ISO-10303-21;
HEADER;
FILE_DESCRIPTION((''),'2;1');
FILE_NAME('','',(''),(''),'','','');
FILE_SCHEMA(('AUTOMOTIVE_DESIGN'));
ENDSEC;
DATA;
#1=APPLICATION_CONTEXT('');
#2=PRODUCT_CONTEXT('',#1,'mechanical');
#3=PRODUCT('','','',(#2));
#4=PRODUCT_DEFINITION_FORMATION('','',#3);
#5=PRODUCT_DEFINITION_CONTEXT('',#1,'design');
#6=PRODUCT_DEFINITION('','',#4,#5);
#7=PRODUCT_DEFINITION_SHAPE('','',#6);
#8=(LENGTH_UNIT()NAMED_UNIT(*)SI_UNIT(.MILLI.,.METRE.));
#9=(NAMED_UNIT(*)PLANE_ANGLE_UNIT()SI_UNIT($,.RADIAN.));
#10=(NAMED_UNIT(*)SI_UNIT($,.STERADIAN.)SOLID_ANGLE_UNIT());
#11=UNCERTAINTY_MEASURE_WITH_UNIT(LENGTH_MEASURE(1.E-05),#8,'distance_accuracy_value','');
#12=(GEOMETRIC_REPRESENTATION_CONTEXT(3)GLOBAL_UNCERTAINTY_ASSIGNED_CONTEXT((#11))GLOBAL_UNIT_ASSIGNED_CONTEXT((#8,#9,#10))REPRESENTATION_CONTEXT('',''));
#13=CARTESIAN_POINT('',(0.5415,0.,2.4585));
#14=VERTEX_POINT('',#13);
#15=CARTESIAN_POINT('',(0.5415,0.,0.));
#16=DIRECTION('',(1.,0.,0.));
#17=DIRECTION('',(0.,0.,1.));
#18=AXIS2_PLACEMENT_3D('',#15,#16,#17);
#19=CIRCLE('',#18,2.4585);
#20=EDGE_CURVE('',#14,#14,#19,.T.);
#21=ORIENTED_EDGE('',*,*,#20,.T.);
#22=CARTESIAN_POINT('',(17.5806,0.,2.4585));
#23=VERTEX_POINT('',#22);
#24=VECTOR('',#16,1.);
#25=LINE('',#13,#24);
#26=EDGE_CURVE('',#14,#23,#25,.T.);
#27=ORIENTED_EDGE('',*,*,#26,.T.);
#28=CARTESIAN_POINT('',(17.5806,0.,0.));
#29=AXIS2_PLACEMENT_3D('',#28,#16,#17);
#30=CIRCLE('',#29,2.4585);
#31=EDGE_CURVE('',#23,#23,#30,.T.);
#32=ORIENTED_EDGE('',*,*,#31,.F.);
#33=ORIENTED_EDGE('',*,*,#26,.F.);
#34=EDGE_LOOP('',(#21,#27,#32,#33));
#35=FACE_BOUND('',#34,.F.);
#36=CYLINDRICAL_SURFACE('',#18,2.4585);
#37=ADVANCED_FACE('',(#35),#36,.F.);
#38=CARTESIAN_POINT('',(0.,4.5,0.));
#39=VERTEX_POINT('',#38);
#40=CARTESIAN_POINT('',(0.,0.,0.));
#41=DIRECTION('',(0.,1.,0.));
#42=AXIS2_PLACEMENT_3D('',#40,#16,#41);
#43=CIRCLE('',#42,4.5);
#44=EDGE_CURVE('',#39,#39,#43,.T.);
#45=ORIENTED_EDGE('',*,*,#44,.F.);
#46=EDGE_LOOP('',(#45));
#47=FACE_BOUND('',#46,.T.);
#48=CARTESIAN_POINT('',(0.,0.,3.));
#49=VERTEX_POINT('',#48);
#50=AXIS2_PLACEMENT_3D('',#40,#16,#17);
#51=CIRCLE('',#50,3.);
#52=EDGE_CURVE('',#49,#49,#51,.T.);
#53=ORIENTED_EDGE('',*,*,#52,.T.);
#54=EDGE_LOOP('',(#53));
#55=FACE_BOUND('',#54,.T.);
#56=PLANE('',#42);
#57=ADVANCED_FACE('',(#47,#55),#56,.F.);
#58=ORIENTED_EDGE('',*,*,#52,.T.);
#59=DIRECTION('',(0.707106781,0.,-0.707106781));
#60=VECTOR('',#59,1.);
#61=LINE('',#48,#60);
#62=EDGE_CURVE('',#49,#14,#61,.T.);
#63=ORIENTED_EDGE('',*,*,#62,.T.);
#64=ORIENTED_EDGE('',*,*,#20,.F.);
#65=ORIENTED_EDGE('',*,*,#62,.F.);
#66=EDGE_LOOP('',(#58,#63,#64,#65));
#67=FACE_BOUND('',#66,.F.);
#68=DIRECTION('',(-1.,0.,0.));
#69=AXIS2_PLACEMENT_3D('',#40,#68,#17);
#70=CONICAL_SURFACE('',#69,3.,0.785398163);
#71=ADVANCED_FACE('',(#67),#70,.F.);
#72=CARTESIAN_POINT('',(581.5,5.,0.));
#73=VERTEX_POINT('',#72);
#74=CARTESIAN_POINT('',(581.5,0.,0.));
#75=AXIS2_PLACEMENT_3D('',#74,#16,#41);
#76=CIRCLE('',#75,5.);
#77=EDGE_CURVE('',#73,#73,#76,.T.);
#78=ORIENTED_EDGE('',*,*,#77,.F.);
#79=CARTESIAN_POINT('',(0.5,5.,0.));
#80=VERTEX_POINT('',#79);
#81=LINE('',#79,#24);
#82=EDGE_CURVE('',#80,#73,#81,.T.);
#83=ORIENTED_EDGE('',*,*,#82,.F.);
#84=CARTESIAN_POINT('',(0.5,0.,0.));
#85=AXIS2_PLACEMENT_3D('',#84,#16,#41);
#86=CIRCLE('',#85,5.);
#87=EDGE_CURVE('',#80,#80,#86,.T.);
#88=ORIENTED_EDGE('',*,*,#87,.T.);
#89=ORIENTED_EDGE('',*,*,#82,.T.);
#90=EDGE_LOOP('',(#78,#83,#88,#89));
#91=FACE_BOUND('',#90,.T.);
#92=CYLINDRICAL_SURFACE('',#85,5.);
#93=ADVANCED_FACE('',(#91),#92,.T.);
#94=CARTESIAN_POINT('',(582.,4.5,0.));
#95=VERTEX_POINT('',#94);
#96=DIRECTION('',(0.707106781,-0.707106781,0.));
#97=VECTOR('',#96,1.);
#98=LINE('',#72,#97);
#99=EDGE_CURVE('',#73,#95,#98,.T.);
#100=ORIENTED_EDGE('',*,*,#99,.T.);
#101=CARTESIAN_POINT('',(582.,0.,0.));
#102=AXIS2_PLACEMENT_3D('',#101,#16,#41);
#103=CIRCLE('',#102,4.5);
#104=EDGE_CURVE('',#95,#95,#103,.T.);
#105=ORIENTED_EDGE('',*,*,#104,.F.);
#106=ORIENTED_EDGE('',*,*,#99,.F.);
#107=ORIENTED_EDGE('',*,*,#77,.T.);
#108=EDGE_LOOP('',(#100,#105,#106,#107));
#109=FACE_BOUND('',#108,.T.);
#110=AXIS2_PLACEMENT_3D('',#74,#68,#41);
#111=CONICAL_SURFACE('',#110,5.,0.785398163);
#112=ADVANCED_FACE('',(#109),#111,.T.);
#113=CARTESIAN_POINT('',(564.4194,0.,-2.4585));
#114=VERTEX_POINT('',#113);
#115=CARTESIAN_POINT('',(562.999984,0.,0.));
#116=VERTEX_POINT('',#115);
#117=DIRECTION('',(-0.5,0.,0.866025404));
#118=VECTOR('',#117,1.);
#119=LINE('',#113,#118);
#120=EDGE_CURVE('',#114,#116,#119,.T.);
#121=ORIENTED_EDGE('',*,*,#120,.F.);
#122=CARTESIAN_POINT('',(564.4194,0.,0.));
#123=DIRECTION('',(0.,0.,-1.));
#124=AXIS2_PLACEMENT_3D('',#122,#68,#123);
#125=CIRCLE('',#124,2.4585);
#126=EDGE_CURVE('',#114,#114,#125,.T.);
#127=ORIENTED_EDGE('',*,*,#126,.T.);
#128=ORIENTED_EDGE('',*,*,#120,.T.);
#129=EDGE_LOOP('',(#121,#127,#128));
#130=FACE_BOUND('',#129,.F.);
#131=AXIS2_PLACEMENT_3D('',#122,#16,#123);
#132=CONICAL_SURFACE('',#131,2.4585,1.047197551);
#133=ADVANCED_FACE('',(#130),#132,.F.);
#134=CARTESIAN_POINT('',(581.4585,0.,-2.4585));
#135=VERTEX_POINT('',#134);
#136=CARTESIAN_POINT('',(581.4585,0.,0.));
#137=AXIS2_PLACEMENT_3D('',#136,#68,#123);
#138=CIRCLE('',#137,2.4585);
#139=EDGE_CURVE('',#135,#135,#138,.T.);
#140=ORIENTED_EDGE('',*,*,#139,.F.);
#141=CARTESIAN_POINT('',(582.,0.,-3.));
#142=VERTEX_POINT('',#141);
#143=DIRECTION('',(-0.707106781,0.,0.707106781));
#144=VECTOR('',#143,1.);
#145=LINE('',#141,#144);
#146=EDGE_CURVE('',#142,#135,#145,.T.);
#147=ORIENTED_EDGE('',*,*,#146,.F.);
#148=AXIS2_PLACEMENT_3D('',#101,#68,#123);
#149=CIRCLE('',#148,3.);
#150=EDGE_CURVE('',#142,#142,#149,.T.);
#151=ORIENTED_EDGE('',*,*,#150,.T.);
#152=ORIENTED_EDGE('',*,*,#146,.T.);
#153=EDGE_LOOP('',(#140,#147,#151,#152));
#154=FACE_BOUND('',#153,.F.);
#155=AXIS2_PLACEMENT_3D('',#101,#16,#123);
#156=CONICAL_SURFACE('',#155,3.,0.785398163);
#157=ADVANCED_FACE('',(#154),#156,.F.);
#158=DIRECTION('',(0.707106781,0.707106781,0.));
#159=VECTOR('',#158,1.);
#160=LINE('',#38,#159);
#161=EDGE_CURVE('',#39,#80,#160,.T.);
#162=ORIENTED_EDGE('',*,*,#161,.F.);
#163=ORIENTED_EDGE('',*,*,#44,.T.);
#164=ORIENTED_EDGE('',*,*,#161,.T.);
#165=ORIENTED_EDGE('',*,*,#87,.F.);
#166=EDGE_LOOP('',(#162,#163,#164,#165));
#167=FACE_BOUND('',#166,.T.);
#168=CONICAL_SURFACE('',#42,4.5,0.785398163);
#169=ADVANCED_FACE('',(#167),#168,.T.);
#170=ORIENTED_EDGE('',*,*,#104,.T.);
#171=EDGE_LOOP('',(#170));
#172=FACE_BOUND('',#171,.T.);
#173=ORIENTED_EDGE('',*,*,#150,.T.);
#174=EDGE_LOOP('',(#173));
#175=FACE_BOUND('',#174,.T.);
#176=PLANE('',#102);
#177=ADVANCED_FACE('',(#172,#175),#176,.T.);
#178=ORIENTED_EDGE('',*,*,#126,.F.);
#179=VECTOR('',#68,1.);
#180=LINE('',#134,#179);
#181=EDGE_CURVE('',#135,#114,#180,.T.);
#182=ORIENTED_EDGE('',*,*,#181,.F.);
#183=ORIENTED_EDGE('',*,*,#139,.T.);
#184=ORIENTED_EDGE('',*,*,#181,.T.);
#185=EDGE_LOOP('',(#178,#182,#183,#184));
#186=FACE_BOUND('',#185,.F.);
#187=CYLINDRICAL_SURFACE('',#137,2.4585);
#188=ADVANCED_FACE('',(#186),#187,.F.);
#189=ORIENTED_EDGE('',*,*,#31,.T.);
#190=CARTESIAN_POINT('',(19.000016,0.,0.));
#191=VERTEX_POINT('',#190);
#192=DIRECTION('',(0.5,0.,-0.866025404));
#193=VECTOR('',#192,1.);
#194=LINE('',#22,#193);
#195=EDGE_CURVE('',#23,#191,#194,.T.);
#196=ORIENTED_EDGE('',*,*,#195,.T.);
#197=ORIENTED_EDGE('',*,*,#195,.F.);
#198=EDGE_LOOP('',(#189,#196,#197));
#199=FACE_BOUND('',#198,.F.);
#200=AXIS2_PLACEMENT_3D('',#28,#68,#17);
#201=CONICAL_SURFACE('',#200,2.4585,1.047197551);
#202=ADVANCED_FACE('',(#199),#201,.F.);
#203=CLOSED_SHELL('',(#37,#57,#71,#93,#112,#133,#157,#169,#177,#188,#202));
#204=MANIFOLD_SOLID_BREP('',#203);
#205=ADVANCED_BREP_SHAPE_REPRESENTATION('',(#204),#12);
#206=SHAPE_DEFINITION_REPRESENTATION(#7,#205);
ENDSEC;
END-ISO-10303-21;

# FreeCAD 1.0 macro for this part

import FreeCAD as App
import Part
import Sketcher
Q = App.Units.Quantity


def add_polygon(sketch, points):
    """Adds a closed chain of lines whose ends are joined by coincident constraints."""
    first, n = sketch.GeometryCount, len(points)
    for a, b in zip(points, points[1:] + points[:1]):
        sketch.addGeometry(Part.LineSegment(App.Vector(*a, 0), App.Vector(*b, 0)), False)
    for i in range(n):
        sketch.addConstraint(Sketcher.Constraint("Coincident", first + i, 2, first + (i + 1) % n, 1))

doc = App.newDocument("Part")
body = doc.addObject("PartDesign::Body", "Body")

# Sketch on XY plane
sketch1 = doc.addObject("Sketcher::SketchObject", "Sketch")
body.addObject(sketch1)
sketch1.AttachmentSupport = (doc.XY_Plane, [""])
sketch1.MapMode = "FlatFace"
add_polygon(sketch1, [(0, 0), (582, 0), (582, 4.5), (581.5, 5), (0.5, 5), (0, 4.5)])  # lines 0-5
sketch1.addConstraint(Sketcher.Constraint("Horizontal", 0))
sketch1.addConstraint(Sketcher.Constraint("Vertical", 1))
sketch1.addConstraint(Sketcher.Constraint("Horizontal", 3))
sketch1.addConstraint(Sketcher.Constraint("Vertical", 5))
sketch1.addConstraint(Sketcher.Constraint("Coincident", 5, 2, -1, 1))
sketch1.addConstraint(Sketcher.Constraint("Perpendicular", 2, 4))
sketch1.addConstraint(Sketcher.Constraint("Horizontal", 1, 2, 4, 2))
sketch1.addConstraint(Sketcher.Constraint("Equal", 2, 4))
sketch1.addConstraint(Sketcher.Constraint("DistanceX", 0, 1, 0, 2, Q("582 mm")))
sketch1.addConstraint(Sketcher.Constraint("DistanceX", 3, 2, 3, 1, Q("581 mm")))
sketch1.addConstraint(Sketcher.Constraint("DistanceY", 1, 1, 1, 2, Q("4.5 mm")))
revolution = doc.addObject("PartDesign::Revolution", "Revolution")
body.addObject(revolution)
revolution.Profile = sketch1
revolution.ReferenceAxis = (sketch1, ["H_Axis"])
revolution.Angle = 360

# Sketch on YZ plane
sketch2 = doc.addObject("Sketcher::SketchObject", "Sketch001")
body.addObject(sketch2)
sketch2.AttachmentSupport = (doc.YZ_Plane, [""])
sketch2.MapMode = "FlatFace"
sketch2.addGeometry(Part.Circle(App.Vector(0, 0, 0), App.Vector(0, 0, 1), 2.4585), False)
sketch2.addConstraint(Sketcher.Constraint("Coincident", 0, 3, -1, 1))
sketch2.addConstraint(Sketcher.Constraint("Diameter", 0, Q("4.917 mm")))
doc.recompute()
hole = doc.addObject("PartDesign::Hole", "Hole")
body.addObject(hole)
hole.Profile = sketch2
hole.ThreadType = "None"
hole.Diameter = 4.917
hole.DepthType = "Dimension"
hole.Depth = 17.5806
hole.DrillPoint = "Angled"
hole.DrillPointAngle = 120
hole.HoleCutType = "Countersink"
hole.HoleCutDiameter = 6
hole.HoleCutCountersinkAngle = 90
hole.Reversed = True

# Sketch on YZ plane
sketch3 = doc.addObject("Sketcher::SketchObject", "Sketch002")
body.addObject(sketch3)
sketch3.AttachmentSupport = (doc.YZ_Plane, [""])
sketch3.MapMode = "FlatFace"
sketch3.AttachmentOffset = App.Placement(App.Vector(0, 0, 582), App.Rotation())
sketch3.addGeometry(Part.Circle(App.Vector(0, 0, 0), App.Vector(0, 0, 1), 2.4585), False)
sketch3.addConstraint(Sketcher.Constraint("Coincident", 0, 3, -1, 1))
sketch3.addConstraint(Sketcher.Constraint("Diameter", 0, Q("4.917 mm")))
doc.recompute()
hole2 = doc.addObject("PartDesign::Hole", "Hole001")
body.addObject(hole2)
hole2.Profile = sketch3
hole2.ThreadType = "None"
hole2.Diameter = 4.917
hole2.DepthType = "Dimension"
hole2.Depth = 17.5806
hole2.DrillPoint = "Angled"
hole2.DrillPointAngle = 120
hole2.HoleCutType = "Countersink"
hole2.HoleCutDiameter = 6
hole2.HoleCutCountersinkAngle = 90

doc.recompute()
